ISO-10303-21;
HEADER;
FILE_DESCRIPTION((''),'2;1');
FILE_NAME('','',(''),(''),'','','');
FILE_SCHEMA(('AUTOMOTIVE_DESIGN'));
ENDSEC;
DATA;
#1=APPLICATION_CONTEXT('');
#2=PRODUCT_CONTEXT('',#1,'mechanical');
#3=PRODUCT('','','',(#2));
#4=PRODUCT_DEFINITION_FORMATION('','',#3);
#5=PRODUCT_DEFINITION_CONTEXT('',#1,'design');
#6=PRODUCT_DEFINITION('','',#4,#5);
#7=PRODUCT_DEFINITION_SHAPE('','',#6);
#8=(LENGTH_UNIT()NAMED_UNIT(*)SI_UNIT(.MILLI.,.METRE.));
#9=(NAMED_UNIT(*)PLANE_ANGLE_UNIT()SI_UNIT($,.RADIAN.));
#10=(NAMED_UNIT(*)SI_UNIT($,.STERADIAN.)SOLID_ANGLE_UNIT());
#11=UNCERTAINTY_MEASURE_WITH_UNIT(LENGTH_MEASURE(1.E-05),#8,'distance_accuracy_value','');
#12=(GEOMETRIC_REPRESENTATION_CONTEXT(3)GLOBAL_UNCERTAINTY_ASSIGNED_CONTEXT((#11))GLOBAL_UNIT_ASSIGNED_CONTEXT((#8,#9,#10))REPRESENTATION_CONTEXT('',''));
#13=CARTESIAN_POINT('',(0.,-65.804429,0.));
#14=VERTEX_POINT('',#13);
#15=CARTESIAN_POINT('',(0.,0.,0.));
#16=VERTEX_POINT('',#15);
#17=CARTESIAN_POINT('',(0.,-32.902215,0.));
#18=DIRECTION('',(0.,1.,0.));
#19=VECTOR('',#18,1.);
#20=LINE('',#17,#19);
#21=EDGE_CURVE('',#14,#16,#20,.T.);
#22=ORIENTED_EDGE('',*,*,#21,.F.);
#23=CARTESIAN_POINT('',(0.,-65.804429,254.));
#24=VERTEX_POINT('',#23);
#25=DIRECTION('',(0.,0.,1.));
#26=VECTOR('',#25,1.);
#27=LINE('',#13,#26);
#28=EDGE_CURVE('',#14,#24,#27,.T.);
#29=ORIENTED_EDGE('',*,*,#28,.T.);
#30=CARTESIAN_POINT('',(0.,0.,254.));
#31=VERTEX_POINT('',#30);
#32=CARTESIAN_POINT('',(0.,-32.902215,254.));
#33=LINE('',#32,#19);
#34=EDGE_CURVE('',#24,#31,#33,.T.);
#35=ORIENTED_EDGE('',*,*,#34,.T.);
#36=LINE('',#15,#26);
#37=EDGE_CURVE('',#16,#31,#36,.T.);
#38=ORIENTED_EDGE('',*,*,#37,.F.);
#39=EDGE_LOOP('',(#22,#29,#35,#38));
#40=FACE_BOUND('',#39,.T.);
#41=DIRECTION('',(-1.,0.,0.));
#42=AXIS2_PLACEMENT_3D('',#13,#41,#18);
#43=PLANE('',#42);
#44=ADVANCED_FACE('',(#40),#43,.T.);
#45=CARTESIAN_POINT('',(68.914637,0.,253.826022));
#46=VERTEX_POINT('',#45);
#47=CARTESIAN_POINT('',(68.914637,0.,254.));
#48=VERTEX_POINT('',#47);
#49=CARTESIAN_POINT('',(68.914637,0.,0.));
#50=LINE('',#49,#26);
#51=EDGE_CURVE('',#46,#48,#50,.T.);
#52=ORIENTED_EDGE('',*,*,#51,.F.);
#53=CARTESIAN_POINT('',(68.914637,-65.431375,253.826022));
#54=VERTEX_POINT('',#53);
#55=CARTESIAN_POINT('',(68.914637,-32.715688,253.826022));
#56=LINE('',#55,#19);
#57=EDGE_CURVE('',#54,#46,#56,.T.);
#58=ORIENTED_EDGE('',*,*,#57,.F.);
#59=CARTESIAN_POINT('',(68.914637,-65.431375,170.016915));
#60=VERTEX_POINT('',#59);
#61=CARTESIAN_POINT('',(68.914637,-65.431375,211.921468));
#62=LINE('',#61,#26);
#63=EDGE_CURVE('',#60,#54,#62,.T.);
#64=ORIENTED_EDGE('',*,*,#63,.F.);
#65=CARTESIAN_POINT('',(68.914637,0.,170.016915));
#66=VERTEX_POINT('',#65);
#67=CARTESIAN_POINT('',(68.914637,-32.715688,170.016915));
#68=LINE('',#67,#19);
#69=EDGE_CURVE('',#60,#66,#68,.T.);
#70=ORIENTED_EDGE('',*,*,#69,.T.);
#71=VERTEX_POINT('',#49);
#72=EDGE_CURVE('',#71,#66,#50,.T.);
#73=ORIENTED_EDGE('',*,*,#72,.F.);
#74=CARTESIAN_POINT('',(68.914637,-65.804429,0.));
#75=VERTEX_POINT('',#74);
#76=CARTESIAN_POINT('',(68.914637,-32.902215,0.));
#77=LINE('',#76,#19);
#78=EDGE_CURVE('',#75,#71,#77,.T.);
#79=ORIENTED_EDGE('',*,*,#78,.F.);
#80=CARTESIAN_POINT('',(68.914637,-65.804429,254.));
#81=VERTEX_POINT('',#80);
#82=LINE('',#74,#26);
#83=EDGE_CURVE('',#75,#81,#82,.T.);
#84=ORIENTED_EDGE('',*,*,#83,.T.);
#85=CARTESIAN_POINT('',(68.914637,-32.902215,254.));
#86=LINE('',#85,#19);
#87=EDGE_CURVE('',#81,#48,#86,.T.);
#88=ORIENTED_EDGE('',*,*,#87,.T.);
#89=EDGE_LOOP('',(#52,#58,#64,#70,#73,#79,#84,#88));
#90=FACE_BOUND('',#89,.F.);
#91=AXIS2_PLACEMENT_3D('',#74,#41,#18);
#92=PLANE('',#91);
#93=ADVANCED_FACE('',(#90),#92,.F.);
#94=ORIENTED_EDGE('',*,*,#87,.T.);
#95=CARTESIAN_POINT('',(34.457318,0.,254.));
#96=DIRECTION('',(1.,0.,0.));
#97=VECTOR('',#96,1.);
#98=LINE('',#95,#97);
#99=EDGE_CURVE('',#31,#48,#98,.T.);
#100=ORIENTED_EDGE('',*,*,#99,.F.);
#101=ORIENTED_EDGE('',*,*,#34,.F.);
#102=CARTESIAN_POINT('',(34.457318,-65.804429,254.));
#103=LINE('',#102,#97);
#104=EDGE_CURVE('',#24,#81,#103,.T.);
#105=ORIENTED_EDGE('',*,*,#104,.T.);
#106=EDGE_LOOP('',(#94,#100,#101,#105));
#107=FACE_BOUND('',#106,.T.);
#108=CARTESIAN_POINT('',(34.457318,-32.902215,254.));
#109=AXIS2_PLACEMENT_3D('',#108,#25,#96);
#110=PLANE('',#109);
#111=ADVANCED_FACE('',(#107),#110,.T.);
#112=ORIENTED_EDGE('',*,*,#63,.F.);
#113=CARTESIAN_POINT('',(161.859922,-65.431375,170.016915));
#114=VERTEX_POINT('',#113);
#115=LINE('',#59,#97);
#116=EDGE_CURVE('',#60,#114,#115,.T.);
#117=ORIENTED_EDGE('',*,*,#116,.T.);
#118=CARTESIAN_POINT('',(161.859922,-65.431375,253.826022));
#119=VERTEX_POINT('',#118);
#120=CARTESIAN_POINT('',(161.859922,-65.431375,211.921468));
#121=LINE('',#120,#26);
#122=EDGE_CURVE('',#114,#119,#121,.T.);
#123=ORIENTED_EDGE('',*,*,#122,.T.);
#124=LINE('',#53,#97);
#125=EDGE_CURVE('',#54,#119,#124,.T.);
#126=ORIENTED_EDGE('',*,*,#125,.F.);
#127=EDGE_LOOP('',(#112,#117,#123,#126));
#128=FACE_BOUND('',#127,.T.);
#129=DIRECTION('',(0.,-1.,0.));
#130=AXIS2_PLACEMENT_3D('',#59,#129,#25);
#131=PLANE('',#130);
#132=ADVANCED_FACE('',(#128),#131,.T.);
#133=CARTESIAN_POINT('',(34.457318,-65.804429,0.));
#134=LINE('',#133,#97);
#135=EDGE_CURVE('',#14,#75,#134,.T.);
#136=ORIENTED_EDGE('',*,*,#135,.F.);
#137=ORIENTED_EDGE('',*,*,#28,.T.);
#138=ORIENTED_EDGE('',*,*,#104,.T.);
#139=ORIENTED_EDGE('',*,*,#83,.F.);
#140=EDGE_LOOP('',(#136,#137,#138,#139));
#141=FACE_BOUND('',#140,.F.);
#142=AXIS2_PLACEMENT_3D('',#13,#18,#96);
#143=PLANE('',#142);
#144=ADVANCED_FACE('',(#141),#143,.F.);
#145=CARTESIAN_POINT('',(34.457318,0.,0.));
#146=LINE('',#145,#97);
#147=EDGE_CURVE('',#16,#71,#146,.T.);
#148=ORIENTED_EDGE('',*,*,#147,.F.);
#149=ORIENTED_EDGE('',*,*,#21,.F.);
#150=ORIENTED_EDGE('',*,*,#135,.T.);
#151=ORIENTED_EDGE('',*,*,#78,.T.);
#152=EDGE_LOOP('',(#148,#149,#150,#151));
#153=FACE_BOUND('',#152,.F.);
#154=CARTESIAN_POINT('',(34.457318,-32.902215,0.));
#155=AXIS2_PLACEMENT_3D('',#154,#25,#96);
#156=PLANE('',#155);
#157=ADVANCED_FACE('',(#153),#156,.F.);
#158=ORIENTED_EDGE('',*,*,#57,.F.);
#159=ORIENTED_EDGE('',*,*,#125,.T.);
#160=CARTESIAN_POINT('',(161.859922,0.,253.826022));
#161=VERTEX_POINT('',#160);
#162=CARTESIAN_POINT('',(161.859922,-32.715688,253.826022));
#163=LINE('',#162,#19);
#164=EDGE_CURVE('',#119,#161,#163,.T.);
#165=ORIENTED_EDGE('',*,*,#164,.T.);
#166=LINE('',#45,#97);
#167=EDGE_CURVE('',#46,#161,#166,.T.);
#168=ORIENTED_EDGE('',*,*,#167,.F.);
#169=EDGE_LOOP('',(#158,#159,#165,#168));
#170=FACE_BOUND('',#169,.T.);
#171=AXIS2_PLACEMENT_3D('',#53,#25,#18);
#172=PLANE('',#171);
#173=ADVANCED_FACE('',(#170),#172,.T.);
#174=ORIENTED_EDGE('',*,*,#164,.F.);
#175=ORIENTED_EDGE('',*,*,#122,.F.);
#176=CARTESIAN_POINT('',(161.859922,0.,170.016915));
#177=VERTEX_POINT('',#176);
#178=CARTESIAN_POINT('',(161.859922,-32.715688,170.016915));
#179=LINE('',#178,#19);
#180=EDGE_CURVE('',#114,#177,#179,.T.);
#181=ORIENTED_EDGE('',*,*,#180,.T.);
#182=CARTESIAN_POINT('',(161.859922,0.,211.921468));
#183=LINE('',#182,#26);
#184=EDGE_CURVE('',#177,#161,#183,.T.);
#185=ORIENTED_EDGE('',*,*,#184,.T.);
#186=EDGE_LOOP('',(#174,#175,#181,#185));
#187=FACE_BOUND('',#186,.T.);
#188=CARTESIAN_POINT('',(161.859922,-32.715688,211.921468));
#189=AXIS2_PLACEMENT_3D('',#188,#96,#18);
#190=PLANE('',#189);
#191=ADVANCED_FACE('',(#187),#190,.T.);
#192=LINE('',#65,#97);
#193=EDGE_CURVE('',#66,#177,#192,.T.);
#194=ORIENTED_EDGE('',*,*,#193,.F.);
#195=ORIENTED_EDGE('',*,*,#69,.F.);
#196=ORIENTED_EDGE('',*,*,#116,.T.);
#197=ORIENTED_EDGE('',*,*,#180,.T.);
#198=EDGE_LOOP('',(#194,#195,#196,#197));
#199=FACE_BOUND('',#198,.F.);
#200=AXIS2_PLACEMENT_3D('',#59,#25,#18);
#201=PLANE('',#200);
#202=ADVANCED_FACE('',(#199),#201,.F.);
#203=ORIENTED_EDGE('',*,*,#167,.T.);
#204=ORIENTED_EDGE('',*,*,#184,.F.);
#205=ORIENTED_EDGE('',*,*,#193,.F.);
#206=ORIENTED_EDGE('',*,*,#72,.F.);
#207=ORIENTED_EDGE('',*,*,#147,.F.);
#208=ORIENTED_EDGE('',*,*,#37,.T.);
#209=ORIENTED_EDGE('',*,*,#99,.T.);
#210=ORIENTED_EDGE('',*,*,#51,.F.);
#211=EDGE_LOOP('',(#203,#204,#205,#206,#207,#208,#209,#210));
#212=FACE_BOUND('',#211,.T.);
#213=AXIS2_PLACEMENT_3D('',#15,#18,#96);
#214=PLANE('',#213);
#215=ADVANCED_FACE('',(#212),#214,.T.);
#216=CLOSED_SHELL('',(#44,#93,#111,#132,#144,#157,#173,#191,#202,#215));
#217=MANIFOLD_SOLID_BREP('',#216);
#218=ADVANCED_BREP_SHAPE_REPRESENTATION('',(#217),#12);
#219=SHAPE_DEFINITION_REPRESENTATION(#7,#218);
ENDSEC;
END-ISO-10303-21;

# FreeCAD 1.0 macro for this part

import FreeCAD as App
import Part
import Sketcher
Q = App.Units.Quantity

doc = App.newDocument("Part")
body = doc.addObject("PartDesign::Body", "Body")

# Sketch on XY plane
sketch1 = body.newObject("Sketcher::SketchObject", "Sketch")
sketch1.AttachmentSupport = (doc.getObject("XY_Plane"), [""])
sketch1.MapMode = "FlatFace"
sketch1.addGeometry([
    Part.LineSegment(App.Vector(0, 0, 0), App.Vector(0, -66, 0)),
    Part.LineSegment(App.Vector(0, -66, 0), App.Vector(69, -66, 0)),
    Part.LineSegment(App.Vector(69, -66, 0), App.Vector(69, 0, 0)),
    Part.LineSegment(App.Vector(69, 0, 0), App.Vector(0, 0, 0)),
], False)
sketch1.addConstraint([
    Sketcher.Constraint("Coincident", 0, 2, 1, 1),
    Sketcher.Constraint("Coincident", 1, 2, 2, 1),
    Sketcher.Constraint("Coincident", 2, 2, 3, 1),
    Sketcher.Constraint("Coincident", 3, 2, 0, 1),
    Sketcher.Constraint("Vertical", 0),
    Sketcher.Constraint("Horizontal", 1),
    Sketcher.Constraint("Vertical", 2),
    Sketcher.Constraint("Horizontal", 3),
    Sketcher.Constraint("Coincident", 3, 2, -1, 1),
    Sketcher.Constraint("DistanceY", 0, 2, 0, 1, 65.804429),
    Sketcher.Constraint("DistanceX", 1, 1, 1, 2, 68.914637),
])
pad1 = body.newObject("PartDesign::Pad", "Pad")
pad1.Profile = sketch1
pad1.Length = Q("10 in")

# Sketch on YZ plane
sketch2 = body.newObject("Sketcher::SketchObject", "Sketch001")
sketch2.AttachmentSupport = (doc.getObject("YZ_Plane"), [""])
sketch2.MapMode = "FlatFace"
sketch2.AttachmentOffset = App.Placement(App.Vector(0, 0, 68.914637), App.Rotation())
sketch2.addGeometry([
    Part.LineSegment(App.Vector(-65, 254, 0), App.Vector(-65, 170, 0)),
    Part.LineSegment(App.Vector(-65, 170, 0), App.Vector(0, 170, 0)),
    Part.LineSegment(App.Vector(0, 170, 0), App.Vector(0, 254, 0)),
    Part.LineSegment(App.Vector(0, 254, 0), App.Vector(-65, 254, 0)),
], False)
sketch2.addConstraint([
    Sketcher.Constraint("Coincident", 0, 2, 1, 1),
    Sketcher.Constraint("Coincident", 1, 2, 2, 1),
    Sketcher.Constraint("Coincident", 2, 2, 3, 1),
    Sketcher.Constraint("Coincident", 3, 2, 0, 1),
    Sketcher.Constraint("Vertical", 0),
    Sketcher.Constraint("Horizontal", 1),
    Sketcher.Constraint("Vertical", 2),
    Sketcher.Constraint("Horizontal", 3),
    Sketcher.Constraint("PointOnObject", 1, 2, -2),
    Sketcher.Constraint("DistanceX", 1, 1, 1, 2, 65.431375),
    Sketcher.Constraint("DistanceY", 0, 2, 0, 1, 83.809108),
    Sketcher.Constraint("DistanceY", -1, 1, 0, 2, 170.016915),
])
pad2 = body.newObject("PartDesign::Pad", "Pad001")
pad2.Profile = sketch2
pad2.Length = 92.945285

doc.recompute()
